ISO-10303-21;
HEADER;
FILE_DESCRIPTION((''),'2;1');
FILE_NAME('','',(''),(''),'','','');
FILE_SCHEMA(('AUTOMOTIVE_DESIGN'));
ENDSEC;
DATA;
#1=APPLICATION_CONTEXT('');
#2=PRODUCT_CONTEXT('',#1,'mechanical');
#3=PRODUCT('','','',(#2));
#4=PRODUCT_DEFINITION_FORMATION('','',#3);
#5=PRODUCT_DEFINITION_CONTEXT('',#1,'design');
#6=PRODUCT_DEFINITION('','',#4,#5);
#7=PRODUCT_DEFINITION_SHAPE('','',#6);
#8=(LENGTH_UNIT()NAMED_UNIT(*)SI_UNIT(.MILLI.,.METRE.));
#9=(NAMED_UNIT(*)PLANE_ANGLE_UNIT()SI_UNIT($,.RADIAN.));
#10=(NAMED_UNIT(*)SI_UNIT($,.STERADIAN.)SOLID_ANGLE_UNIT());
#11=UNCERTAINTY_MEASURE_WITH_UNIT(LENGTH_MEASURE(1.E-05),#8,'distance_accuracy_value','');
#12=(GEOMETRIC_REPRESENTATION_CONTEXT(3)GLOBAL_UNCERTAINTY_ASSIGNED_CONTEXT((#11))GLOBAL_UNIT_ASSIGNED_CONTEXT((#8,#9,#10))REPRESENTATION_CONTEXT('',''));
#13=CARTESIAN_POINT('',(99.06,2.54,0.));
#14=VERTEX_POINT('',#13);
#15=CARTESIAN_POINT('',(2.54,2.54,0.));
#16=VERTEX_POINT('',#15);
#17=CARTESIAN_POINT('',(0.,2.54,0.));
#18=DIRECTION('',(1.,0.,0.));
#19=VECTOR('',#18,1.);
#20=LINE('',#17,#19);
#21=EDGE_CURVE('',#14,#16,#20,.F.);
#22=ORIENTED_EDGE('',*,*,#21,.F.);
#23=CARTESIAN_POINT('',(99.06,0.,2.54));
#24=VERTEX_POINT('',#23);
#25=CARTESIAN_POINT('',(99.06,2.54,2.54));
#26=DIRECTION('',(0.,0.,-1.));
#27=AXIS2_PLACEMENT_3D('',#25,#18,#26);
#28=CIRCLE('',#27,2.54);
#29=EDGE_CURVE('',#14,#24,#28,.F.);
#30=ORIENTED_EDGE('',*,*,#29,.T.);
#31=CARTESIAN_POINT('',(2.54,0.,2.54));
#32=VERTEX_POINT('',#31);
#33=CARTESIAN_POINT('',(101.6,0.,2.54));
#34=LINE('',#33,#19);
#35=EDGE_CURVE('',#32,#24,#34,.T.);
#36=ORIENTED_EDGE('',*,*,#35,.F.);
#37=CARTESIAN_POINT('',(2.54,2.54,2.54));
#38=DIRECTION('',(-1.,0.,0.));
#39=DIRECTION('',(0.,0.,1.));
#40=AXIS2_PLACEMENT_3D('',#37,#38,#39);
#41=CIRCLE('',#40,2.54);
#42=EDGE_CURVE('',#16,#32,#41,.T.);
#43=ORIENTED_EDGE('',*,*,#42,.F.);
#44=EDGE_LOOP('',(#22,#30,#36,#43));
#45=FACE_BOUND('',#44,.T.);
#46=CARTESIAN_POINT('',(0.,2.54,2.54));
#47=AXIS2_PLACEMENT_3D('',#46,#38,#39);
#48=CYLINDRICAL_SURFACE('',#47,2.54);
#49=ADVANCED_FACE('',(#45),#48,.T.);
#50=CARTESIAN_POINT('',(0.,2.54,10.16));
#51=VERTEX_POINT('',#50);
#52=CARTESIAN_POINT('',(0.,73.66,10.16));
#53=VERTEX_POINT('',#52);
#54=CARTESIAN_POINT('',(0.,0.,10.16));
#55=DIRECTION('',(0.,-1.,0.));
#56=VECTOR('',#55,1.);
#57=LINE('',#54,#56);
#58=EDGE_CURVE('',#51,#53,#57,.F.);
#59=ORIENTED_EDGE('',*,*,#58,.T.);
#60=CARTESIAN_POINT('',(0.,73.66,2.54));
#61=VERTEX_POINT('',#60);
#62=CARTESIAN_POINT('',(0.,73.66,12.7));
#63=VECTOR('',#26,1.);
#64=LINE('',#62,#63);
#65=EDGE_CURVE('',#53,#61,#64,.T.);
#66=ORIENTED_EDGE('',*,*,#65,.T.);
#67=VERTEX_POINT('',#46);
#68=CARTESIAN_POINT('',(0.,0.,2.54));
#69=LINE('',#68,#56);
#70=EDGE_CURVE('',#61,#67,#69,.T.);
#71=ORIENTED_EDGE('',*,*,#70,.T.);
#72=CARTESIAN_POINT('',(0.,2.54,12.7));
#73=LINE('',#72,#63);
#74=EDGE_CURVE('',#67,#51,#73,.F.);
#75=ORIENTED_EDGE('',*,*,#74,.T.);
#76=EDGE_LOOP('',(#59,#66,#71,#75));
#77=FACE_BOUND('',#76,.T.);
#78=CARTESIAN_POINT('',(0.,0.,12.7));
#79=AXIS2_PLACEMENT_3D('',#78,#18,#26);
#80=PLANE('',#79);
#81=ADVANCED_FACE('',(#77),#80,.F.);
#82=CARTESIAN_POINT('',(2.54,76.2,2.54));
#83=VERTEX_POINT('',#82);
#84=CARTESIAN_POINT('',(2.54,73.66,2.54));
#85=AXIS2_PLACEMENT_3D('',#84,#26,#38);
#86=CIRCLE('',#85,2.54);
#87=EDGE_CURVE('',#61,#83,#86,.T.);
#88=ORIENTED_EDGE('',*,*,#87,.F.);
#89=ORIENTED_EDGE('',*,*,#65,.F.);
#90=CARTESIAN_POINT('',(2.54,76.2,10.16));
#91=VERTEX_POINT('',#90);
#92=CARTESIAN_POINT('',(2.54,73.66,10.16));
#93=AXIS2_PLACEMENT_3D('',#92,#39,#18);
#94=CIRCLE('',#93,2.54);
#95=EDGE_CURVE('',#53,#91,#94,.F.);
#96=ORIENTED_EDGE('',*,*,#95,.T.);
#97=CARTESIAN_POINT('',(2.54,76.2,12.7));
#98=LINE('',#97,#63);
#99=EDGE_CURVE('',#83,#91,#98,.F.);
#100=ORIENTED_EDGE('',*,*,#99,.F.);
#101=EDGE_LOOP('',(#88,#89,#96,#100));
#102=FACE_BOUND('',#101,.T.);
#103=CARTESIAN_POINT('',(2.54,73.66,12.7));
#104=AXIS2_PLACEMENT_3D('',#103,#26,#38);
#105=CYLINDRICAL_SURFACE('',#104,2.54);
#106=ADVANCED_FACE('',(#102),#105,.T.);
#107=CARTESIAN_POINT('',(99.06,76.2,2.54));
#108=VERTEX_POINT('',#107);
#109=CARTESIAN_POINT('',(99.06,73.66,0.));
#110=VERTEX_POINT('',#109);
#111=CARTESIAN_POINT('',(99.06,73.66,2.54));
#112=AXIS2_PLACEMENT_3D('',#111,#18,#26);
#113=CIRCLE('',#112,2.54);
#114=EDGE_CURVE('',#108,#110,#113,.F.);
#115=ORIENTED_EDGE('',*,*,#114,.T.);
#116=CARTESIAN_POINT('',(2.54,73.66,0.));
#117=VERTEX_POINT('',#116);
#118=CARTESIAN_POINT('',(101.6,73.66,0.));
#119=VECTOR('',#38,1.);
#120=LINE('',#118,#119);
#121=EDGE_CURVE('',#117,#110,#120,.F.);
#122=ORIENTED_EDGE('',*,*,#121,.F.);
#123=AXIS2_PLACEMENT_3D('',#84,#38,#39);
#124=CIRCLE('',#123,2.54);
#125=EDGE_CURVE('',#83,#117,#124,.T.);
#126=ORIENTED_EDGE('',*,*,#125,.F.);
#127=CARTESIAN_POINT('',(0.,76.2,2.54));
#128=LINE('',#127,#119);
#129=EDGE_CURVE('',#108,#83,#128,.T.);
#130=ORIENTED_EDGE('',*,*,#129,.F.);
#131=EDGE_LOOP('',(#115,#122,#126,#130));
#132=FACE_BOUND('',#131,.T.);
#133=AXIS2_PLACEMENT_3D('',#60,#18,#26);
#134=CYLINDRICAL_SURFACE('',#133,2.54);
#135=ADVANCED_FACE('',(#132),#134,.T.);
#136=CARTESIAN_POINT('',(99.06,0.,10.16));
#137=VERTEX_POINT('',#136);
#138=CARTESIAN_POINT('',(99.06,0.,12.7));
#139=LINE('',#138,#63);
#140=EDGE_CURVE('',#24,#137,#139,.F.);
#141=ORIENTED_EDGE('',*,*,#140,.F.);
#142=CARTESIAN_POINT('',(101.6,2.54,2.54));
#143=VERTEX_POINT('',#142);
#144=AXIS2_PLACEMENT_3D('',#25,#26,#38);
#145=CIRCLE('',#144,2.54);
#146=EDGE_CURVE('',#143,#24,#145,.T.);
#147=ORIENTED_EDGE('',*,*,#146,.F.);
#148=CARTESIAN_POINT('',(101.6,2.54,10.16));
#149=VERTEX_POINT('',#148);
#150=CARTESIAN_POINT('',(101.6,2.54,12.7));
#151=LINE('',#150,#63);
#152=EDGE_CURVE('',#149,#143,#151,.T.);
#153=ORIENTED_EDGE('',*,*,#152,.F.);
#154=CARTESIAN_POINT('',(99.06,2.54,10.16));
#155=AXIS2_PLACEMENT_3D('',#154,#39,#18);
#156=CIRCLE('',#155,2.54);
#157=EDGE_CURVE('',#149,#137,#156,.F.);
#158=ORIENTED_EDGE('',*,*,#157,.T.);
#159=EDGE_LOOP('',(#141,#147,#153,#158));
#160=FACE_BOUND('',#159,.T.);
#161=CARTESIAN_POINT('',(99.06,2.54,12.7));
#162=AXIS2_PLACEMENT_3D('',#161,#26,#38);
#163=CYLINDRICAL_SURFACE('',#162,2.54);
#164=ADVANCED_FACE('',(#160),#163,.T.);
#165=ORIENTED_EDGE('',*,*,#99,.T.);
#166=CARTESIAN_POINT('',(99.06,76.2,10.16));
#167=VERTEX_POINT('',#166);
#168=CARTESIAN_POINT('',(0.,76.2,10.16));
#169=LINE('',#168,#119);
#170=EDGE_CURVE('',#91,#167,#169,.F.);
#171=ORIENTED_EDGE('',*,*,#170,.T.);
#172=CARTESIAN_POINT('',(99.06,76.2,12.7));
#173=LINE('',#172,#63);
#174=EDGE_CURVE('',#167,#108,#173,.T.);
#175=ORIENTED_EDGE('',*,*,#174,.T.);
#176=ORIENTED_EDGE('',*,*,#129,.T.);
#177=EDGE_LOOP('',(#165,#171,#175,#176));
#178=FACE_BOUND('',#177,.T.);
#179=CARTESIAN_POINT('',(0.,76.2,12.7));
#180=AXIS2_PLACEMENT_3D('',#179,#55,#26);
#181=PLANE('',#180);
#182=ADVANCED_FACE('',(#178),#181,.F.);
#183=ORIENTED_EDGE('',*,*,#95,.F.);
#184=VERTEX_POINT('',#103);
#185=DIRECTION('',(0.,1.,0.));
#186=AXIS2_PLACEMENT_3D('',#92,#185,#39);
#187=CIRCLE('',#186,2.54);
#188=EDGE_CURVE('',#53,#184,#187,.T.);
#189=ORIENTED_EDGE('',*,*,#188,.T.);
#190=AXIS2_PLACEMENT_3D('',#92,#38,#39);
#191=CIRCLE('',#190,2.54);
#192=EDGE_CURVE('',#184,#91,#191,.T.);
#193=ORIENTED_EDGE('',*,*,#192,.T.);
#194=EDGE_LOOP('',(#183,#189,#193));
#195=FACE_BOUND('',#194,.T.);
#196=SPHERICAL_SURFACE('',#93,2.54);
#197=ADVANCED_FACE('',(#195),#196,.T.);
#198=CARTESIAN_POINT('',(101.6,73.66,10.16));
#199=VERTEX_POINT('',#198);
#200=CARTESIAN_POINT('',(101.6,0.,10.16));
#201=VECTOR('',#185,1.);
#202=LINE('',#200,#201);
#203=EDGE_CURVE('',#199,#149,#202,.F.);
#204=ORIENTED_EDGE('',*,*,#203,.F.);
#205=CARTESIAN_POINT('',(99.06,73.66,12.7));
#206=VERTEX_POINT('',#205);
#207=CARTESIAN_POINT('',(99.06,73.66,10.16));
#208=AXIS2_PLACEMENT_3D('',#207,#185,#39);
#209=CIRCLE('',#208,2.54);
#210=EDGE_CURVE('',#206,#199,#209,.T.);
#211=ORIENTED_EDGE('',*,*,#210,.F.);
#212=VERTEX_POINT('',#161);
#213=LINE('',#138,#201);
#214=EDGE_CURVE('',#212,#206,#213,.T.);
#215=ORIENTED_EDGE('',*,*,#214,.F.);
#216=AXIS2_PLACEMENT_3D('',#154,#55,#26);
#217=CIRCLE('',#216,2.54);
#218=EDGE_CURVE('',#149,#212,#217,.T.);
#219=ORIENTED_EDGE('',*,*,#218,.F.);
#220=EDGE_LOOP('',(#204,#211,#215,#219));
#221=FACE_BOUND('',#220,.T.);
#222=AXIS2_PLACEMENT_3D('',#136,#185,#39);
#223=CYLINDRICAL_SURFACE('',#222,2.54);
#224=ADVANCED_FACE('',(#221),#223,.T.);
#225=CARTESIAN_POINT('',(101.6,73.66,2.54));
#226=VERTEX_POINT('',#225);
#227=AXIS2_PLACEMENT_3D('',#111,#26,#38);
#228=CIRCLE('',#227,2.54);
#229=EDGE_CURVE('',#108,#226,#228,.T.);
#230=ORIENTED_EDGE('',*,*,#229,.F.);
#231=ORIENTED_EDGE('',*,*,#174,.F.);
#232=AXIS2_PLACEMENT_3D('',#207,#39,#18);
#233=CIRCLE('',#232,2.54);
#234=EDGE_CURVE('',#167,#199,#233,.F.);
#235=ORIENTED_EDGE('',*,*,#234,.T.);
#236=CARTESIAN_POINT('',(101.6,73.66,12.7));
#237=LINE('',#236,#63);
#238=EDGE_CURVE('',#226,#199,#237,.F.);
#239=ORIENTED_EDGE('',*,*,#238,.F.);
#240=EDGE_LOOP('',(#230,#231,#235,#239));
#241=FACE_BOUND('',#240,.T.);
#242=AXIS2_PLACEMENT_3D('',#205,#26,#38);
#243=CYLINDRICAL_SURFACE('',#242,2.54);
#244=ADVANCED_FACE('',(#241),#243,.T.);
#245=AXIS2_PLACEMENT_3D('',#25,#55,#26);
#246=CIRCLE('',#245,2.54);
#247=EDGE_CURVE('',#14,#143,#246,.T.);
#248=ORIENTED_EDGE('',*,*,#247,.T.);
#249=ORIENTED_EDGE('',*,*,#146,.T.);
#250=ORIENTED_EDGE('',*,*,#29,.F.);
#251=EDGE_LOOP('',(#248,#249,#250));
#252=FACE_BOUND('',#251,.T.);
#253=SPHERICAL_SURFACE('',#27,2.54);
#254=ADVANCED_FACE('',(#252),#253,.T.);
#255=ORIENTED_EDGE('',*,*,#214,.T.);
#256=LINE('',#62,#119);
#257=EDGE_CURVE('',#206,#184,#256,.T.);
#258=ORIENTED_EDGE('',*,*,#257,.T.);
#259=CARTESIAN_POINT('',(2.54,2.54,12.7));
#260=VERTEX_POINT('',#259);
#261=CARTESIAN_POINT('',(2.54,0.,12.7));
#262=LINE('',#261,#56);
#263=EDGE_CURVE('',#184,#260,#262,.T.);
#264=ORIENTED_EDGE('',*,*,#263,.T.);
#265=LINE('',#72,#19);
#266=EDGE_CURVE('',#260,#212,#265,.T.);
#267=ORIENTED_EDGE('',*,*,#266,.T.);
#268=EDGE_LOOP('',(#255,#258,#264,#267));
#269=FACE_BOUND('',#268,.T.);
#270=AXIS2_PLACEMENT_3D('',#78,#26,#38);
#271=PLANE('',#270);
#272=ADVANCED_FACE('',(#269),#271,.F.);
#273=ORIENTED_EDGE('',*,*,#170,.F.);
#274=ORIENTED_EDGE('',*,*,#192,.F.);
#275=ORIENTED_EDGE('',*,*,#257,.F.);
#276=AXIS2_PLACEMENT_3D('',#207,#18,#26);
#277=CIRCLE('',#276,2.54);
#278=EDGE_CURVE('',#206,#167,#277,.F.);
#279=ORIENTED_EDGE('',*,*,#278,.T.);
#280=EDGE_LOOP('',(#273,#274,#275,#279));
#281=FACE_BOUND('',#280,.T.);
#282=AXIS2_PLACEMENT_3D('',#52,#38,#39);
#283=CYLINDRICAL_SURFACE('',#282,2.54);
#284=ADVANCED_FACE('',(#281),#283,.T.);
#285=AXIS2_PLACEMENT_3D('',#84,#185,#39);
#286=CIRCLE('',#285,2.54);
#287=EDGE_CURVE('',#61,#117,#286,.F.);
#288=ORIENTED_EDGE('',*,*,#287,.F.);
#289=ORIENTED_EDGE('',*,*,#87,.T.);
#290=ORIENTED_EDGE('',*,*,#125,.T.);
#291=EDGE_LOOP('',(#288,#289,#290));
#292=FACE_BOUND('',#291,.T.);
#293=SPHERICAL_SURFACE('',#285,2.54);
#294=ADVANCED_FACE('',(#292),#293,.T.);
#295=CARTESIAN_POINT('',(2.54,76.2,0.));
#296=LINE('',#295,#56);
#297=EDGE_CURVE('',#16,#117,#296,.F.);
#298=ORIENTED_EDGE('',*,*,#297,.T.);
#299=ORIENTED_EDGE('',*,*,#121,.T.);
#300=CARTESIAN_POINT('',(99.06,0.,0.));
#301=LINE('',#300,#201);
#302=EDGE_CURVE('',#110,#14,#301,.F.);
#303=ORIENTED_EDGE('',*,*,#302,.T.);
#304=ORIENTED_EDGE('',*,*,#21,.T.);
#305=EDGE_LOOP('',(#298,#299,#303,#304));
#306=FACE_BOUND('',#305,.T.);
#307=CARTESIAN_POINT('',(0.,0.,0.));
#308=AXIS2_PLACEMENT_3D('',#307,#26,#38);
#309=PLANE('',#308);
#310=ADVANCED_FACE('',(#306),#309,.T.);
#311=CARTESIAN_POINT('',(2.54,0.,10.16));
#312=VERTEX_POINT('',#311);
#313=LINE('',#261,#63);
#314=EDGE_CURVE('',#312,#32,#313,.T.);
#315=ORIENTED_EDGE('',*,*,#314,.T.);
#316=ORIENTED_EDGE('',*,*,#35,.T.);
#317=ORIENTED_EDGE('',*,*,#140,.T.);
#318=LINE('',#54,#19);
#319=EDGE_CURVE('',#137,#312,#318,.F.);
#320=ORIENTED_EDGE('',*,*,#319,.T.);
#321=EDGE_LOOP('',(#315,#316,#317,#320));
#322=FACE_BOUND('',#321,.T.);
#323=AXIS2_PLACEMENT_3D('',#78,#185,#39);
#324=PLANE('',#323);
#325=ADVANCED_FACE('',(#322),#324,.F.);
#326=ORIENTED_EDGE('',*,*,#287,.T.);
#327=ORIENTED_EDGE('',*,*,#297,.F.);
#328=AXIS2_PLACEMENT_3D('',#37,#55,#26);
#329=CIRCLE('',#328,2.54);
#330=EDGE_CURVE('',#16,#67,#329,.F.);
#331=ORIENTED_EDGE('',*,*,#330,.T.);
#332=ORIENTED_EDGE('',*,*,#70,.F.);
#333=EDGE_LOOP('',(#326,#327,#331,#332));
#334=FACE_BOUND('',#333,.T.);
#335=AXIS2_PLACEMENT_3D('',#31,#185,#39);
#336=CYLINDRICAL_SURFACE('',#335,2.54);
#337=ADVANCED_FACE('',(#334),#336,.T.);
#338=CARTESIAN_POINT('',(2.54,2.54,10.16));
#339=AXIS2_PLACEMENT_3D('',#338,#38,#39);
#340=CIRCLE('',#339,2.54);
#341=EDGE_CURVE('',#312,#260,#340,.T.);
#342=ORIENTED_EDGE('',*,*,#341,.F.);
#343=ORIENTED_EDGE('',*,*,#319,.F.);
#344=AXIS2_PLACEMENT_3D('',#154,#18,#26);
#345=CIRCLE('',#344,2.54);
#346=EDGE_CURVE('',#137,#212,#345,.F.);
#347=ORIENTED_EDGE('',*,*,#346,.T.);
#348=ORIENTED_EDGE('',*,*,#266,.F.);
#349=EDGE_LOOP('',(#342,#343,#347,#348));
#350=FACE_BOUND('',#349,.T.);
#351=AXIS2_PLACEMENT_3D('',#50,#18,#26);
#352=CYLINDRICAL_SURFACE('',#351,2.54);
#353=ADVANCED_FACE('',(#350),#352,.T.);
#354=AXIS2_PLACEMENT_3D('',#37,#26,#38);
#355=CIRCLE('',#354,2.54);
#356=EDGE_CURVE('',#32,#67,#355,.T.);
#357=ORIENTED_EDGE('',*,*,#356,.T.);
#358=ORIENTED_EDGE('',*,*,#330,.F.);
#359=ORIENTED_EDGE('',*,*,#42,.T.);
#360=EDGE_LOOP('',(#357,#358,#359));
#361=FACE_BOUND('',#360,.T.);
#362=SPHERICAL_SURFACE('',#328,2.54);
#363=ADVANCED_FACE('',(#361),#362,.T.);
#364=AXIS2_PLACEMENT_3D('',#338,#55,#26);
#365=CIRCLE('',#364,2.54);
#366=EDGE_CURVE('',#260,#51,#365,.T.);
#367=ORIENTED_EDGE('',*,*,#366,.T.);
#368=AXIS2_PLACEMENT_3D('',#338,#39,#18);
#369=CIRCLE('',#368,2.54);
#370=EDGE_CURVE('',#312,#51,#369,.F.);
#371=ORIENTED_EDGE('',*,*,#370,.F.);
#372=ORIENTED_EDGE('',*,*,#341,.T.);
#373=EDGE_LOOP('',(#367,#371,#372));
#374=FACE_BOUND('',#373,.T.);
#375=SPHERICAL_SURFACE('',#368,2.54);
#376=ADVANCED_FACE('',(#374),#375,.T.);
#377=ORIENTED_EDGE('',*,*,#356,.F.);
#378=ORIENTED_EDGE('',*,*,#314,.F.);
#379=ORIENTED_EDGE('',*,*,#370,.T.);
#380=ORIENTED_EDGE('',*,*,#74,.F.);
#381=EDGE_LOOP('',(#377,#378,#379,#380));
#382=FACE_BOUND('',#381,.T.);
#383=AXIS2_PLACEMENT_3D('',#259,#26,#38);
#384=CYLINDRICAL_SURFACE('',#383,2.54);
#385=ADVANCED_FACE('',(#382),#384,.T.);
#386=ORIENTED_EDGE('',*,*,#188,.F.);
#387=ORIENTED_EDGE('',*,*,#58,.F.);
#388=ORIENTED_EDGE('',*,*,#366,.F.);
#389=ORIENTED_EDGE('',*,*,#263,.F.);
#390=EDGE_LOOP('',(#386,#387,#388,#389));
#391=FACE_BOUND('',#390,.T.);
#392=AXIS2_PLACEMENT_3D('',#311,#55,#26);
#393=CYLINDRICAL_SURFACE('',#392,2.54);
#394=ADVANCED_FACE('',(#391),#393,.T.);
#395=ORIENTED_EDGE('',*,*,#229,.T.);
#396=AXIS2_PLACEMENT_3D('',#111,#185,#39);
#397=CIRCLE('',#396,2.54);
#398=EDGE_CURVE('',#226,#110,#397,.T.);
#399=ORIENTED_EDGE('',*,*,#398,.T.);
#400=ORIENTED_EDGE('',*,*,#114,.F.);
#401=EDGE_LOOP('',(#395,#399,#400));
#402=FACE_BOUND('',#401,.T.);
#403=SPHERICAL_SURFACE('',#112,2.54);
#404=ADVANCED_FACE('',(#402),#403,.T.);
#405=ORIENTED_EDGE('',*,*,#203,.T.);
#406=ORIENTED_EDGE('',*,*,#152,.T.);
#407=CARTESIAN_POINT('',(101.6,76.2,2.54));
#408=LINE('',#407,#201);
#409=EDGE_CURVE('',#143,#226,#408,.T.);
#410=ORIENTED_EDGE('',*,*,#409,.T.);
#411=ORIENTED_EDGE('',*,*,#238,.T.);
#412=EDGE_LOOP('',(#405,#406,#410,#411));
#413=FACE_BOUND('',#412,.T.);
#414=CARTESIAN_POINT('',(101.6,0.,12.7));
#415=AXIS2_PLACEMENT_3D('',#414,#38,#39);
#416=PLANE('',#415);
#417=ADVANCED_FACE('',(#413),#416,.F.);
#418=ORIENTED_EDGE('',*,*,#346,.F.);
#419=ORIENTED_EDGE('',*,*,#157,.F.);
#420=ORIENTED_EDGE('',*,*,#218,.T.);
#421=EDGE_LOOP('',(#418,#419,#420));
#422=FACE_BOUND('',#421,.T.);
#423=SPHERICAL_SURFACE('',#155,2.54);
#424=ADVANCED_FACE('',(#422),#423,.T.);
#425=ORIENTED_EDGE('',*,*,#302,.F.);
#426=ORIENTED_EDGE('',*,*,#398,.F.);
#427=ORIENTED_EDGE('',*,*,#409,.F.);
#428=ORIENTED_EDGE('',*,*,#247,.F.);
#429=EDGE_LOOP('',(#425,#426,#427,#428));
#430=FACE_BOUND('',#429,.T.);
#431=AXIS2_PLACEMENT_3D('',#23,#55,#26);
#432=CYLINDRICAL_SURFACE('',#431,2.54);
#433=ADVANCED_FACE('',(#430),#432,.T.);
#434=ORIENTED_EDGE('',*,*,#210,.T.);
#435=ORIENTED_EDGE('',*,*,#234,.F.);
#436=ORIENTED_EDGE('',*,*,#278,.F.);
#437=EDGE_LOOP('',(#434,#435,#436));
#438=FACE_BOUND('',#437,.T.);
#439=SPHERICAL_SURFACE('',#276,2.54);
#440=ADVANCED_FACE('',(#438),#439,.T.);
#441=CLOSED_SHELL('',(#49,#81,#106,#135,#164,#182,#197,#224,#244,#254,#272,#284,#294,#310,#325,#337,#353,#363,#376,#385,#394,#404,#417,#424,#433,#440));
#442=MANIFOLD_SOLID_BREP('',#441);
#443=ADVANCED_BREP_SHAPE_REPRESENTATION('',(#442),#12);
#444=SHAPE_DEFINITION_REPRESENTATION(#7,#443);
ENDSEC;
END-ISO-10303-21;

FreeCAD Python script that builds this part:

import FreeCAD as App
import Part
import Sketcher
from FreeCAD import Vector
Q = App.Units.Quantity


def add_polygon(sketch, points):
    """Adds a closed chain of lines whose ends are joined by coincident constraints."""
    first, n = sketch.GeometryCount, len(points)
    for a, b in zip(points, points[1:] + points[:1]):
        sketch.addGeometry(Part.LineSegment(App.Vector(*a, 0), App.Vector(*b, 0)), False)
    for i in range(n):
        sketch.addConstraint(Sketcher.Constraint("Coincident", first + i, 2, first + (i + 1) % n, 1))

doc = App.newDocument("Part")
body = doc.addObject("PartDesign::Body", "Body")

sketch1 = body.newObject("Sketcher::SketchObject", "Sketch")
sketch1.AttachmentSupport = (doc.getObject("XY_Plane"), [""])
sketch1.MapMode = "FlatFace"
add_polygon(sketch1, [(0, 76.2), (0, 0), (101.6, 0), (101.6, 76.2)])
sketch1.addConstraint([
    Sketcher.Constraint("Vertical", 0),
    Sketcher.Constraint("Horizontal", 1),
    Sketcher.Constraint("Vertical", 2),
    Sketcher.Constraint("Horizontal", 3),
    Sketcher.Constraint("Coincident", 0, 2, -1, 1),
    Sketcher.Constraint("DistanceX", 1, 1, 1, 2, Q("4 in")),
    Sketcher.Constraint("DistanceY", 0, 2, 0, 1, Q("3 in")),
])
pad1 = body.newObject("PartDesign::Pad", "Pad")
pad1.Profile = sketch1
pad1.Length = Q("0.5 in")
doc.recompute()

fillet = body.newObject("PartDesign::Fillet", "Fillet")
fillet.Base = (pad1, ["Edge1"])
fillet.UseAllEdges = True
fillet.Radius = Q("0.1 in")

doc.recompute()
